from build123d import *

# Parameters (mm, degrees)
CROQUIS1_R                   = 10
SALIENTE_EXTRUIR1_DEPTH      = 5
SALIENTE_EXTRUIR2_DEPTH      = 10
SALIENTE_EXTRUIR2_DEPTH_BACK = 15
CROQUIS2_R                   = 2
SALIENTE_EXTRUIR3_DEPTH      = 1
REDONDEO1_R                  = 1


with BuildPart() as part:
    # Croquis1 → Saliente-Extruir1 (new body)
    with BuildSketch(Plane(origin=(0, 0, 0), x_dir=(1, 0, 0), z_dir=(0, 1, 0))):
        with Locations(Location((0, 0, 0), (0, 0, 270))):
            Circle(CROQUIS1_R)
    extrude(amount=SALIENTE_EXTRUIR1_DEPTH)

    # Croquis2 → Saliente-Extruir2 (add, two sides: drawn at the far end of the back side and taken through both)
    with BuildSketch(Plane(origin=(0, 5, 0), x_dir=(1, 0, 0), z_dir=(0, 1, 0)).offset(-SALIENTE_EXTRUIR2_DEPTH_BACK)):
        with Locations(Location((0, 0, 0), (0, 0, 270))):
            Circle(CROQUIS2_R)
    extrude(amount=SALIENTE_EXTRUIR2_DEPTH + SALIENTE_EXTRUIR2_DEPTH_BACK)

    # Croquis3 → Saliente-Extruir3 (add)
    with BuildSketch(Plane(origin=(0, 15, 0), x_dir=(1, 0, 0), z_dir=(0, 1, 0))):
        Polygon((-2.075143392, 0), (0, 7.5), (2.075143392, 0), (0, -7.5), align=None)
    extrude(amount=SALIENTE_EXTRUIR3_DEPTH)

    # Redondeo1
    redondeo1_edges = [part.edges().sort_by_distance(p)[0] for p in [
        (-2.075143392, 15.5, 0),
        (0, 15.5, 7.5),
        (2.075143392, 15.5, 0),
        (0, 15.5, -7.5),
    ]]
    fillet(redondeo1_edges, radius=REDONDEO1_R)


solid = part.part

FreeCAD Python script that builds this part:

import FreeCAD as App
import Part
import Sketcher
from FreeCAD import Vector
Q = App.Units.Quantity


def edges_at(feature, points):
    """Names of the edges that pass closest to the given points."""
    edges = feature.Shape.Edges
    near = lambda p: min(range(len(edges)), key=lambda i: edges[i].distToShape(Part.Vertex(*p))[0])
    return sorted({f"Edge{near(p) + 1}" for p in points})

doc = App.newDocument("Part")
body = doc.addObject("PartDesign::Body", "Body")

# Sketch on XZ plane
sketch1 = body.newObject("Sketcher::SketchObject", "Sketch")
sketch1.AttachmentSupport = (doc.getObject("XZ_Plane"), [""])
sketch1.MapMode = "FlatFace"
sketch1.addGeometry(Part.Circle(Vector(0, 0, 0), Vector(0, 0, 1), 10), False)
sketch1.addConstraint([
    Sketcher.Constraint("Coincident", 0, 3, -1, 1),
    Sketcher.Constraint("Diameter", 0, Q("20 mm")),
])
pad1 = body.newObject("PartDesign::Pad", "Pad")
pad1.Profile = sketch1
pad1.Length = 5
pad1.Reversed = True

# Sketch on XZ plane
sketch2 = body.newObject("Sketcher::SketchObject", "Sketch001")
sketch2.AttachmentSupport = (doc.getObject("XZ_Plane"), [""])
sketch2.MapMode = "FlatFace"
sketch2.AttachmentOffset = App.Placement(Vector(0, 0, -5), App.Rotation())
sketch2.addGeometry(Part.Circle(Vector(0, 0, 0), Vector(0, 0, 1), 2), False)
sketch2.addConstraint([
    Sketcher.Constraint("Coincident", 0, 3, -1, 1),
    Sketcher.Constraint("Diameter", 0, Q("4 mm")),
])
pad2 = body.newObject("PartDesign::Pad", "Pad001")
pad2.Profile = sketch2
pad2.Type = "TwoLengths"
pad2.Length = 10
pad2.Length2 = 15
pad2.Reversed = True

# Sketch on XZ plane
sketch3 = body.newObject("Sketcher::SketchObject", "Sketch002")
sketch3.AttachmentSupport = (doc.getObject("XZ_Plane"), [""])
sketch3.MapMode = "FlatFace"
sketch3.AttachmentOffset = App.Placement(Vector(0, 0, -15), App.Rotation())
sketch3.addGeometry([
    Part.LineSegment(Vector(0, -8, 0), Vector(-2, 0, 0)),
    Part.LineSegment(Vector(-2, 0, 0), Vector(0, 8, 0)),
    Part.LineSegment(Vector(0, 8, 0), Vector(2, 0, 0)),
    Part.LineSegment(Vector(2, 0, 0), Vector(0, -8, 0)),
], False)
sketch3.addConstraint([
    Sketcher.Constraint("Coincident", 0, 2, 1, 1),
    Sketcher.Constraint("Coincident", 1, 2, 2, 1),
    Sketcher.Constraint("Coincident", 2, 2, 3, 1),
    Sketcher.Constraint("Coincident", 3, 2, 0, 1),
    Sketcher.Constraint("Symmetric", 0, 2, 2, 2, -1, 1),
    Sketcher.Constraint("Symmetric", 1, 2, 3, 2, -1, 1),
    Sketcher.Constraint("PointOnObject", 0, 2, -1),
    Sketcher.Constraint("PointOnObject", 1, 2, -2),
    Sketcher.Constraint("DistanceY", 3, 2, 1, 2, Q("15 mm")),
    Sketcher.Constraint("Distance", 0, Q("7.781788 mm")),
])
pad3 = body.newObject("PartDesign::Pad", "Pad002")
pad3.Profile = sketch3
pad3.Length = 1
pad3.Reversed = True
doc.recompute()

fillet = body.newObject("PartDesign::Fillet", "Fillet")
fillet.Base = (pad3, edges_at(pad3, [
    (-2.075, 15.5, 0),
    (0, 15.5, 7.5),
    (2.075, 15.5, 0),
    (0, 15.5, -7.5),
]))
fillet.Radius = 1

doc.recompute()
